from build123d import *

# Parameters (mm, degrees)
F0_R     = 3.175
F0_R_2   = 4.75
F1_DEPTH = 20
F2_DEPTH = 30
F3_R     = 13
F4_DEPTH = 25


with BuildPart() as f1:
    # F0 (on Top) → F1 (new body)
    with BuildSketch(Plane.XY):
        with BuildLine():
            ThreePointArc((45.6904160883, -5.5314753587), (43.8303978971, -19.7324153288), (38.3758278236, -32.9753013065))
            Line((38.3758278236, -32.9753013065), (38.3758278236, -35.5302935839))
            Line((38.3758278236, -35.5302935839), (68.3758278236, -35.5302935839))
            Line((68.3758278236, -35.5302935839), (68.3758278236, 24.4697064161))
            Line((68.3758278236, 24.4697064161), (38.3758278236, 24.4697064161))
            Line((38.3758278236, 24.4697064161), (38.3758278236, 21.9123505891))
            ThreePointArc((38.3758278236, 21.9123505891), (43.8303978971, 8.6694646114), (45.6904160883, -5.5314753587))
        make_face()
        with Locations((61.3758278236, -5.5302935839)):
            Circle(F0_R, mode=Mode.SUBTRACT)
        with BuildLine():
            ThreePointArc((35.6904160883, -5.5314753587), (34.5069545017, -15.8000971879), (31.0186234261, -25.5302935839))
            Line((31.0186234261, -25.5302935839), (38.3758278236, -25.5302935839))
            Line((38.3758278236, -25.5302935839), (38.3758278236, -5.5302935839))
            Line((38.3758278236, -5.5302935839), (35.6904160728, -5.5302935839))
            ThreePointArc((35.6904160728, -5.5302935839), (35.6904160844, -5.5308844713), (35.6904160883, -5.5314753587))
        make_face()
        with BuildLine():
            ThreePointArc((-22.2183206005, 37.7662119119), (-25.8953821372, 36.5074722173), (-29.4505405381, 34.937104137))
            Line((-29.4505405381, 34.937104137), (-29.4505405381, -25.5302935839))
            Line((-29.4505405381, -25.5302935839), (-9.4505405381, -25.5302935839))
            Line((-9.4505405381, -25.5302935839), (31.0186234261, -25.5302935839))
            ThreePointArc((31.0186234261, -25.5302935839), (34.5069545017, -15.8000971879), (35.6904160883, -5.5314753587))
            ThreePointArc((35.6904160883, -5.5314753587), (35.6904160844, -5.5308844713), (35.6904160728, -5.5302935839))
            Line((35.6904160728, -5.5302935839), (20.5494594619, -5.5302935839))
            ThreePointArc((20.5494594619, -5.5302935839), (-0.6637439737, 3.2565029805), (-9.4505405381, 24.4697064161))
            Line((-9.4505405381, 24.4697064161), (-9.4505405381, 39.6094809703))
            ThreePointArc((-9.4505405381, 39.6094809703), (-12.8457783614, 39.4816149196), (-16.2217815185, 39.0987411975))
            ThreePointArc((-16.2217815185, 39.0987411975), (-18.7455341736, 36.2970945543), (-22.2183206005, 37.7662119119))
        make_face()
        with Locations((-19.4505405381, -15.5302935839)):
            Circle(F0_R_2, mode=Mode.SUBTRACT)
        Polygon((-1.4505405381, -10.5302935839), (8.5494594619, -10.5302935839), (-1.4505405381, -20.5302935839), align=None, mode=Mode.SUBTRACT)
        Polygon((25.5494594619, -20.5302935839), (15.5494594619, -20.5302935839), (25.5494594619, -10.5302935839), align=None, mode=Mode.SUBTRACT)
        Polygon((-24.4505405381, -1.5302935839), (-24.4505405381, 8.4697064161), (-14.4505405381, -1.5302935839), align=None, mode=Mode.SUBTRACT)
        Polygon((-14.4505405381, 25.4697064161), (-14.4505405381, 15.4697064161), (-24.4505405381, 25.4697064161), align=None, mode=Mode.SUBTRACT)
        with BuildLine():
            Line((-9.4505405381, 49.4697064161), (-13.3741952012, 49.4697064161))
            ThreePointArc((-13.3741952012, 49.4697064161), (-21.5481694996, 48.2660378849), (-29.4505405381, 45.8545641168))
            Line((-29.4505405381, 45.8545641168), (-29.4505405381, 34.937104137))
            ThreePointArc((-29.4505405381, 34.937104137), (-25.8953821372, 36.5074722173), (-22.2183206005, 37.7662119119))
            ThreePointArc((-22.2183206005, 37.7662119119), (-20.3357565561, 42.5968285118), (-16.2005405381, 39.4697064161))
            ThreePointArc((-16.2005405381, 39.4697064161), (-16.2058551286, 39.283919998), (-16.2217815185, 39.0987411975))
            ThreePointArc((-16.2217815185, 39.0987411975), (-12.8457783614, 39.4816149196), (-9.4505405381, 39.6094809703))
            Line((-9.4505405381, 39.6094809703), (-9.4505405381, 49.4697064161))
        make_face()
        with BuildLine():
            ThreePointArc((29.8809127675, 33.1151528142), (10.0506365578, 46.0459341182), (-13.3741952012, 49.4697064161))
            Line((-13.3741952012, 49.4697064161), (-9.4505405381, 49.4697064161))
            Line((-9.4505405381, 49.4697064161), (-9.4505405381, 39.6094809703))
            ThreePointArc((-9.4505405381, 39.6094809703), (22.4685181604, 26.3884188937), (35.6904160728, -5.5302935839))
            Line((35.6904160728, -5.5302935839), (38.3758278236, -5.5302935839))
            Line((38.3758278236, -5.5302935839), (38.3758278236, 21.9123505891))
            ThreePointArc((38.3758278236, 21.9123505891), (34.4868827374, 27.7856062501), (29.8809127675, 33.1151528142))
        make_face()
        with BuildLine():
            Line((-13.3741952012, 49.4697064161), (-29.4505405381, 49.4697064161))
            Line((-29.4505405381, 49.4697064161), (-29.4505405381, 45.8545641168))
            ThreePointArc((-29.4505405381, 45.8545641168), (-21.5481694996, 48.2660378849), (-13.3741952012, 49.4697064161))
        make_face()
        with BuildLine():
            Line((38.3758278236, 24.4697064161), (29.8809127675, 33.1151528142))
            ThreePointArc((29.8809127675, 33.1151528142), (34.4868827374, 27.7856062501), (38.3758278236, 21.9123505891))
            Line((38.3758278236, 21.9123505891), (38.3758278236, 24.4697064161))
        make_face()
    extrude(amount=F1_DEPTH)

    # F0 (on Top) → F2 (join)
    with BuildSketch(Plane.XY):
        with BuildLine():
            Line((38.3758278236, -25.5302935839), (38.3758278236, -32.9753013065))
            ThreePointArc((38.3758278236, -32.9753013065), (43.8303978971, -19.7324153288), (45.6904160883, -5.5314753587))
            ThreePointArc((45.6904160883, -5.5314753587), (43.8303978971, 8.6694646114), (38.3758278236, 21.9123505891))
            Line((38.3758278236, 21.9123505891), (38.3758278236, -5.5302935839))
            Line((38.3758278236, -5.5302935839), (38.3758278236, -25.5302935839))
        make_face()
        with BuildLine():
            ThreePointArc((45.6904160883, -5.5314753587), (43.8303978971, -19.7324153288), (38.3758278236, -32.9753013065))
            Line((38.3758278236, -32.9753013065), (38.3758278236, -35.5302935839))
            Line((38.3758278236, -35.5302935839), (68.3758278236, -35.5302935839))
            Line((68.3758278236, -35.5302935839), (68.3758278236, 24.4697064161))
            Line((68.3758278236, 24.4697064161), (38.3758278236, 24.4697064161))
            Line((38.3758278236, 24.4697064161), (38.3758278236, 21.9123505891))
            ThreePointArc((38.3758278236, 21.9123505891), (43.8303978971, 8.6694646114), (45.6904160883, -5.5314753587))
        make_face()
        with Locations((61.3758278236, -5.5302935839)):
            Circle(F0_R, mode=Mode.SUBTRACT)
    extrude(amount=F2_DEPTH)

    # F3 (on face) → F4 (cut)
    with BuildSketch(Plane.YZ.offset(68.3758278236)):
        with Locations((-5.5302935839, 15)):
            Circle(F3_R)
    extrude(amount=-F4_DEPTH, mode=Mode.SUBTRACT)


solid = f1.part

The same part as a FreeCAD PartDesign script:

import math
import FreeCAD as App
import Part
import Sketcher

doc = App.newDocument("Part")
body = doc.addObject("PartDesign::Body", "Body")

sketch1 = body.newObject("Sketcher::SketchObject", "Sketch")
sketch1.AttachmentSupport = (doc.getObject("XY_Plane"), [""])
sketch1.MapMode = "FlatFace"
sketch1.addGeometry([
    Part.ArcOfCircle(Part.Circle(App.Vector(-9.45, -5.53, 0), App.Vector(0, 0, 1), 55.14), math.radians(-30), math.radians(0)),
    Part.LineSegment(App.Vector(38.38, -32.98, 0), App.Vector(38.38, -35.53, 0)),
    Part.LineSegment(App.Vector(38.38, -35.53, 0), App.Vector(68.38, -35.53, 0)),
    Part.LineSegment(App.Vector(68.38, -35.53, 0), App.Vector(68.38, 24.47, 0)),
    Part.LineSegment(App.Vector(68.38, 24.47, 0), App.Vector(38.38, 24.47, 0)),
    Part.LineSegment(App.Vector(38.38, 24.47, 0), App.Vector(29.88, 33.12, 0)),
    Part.ArcOfCircle(Part.Circle(App.Vector(-9.45, -5.53, 0), App.Vector(0, 0, 1), 55.14), math.radians(44), math.radians(94)),
    Part.LineSegment(App.Vector(-13.37, 49.47, 0), App.Vector(-29.45, 49.47, 0)),
    Part.LineSegment(App.Vector(-29.45, 49.47, 0), App.Vector(-29.45, -25.53, 0)),
    Part.LineSegment(App.Vector(-29.45, -25.53, 0), App.Vector(38.38, -25.53, 0)),
    Part.LineSegment(App.Vector(38.38, -25.53, 0), App.Vector(38.38, 21.91, 0)),
    Part.ArcOfCircle(Part.Circle(App.Vector(-9.45, -5.53, 0), App.Vector(0, 0, 1), 55.14), math.radians(0), math.radians(30)),
    Part.Circle(App.Vector(61.38, -5.53, 0), App.Vector(0, 0, 1), 3.17),
    Part.LineSegment(App.Vector(-14.45, 15.47, 0), App.Vector(-24.45, 25.47, 0)),
    Part.LineSegment(App.Vector(-24.45, 25.47, 0), App.Vector(-14.45, 25.47, 0)),
    Part.LineSegment(App.Vector(-14.45, 25.47, 0), App.Vector(-14.45, 15.47, 0)),
    Part.LineSegment(App.Vector(35.69, -5.53, 0), App.Vector(20.55, -5.53, 0)),
    Part.ArcOfCircle(Part.Circle(App.Vector(20.55, 24.47, 0), App.Vector(0, 0, 1), 30), math.radians(180), math.radians(270)),
    Part.LineSegment(App.Vector(-9.45, 24.47, 0), App.Vector(-9.45, 39.61, 0)),
    Part.ArcOfCircle(Part.Circle(App.Vector(-9.45, -5.53, 0), App.Vector(0, 0, 1), 45.14), math.radians(0), math.radians(90)),
    Part.ArcOfCircle(Part.Circle(App.Vector(-19.45, 39.47, 0), App.Vector(0, 0, 1), 3.25), math.radians(-148), math.radians(-7)),
    Part.ArcOfCircle(Part.Circle(App.Vector(-19.45, 39.47, 0), App.Vector(0, 0, 1), 3.25), math.radians(0), math.radians(212)),
    Part.ArcOfCircle(Part.Circle(App.Vector(-19.45, 39.47, 0), App.Vector(0, 0, 1), 3.25), math.radians(-6.55), math.radians(0)),
    Part.Circle(App.Vector(-19.45, -15.53, 0), App.Vector(0, 0, 1), 4.75),
    Part.LineSegment(App.Vector(-1.45, -20.53, 0), App.Vector(-1.45, -10.53, 0)),
    Part.LineSegment(App.Vector(-1.45, -10.53, 0), App.Vector(8.55, -10.53, 0)),
    Part.LineSegment(App.Vector(8.55, -10.53, 0), App.Vector(-1.45, -20.53, 0)),
    Part.LineSegment(App.Vector(25.55, -10.53, 0), App.Vector(25.55, -20.53, 0)),
    Part.LineSegment(App.Vector(25.55, -20.53, 0), App.Vector(15.55, -20.53, 0)),
    Part.LineSegment(App.Vector(15.55, -20.53, 0), App.Vector(25.55, -10.53, 0)),
    Part.LineSegment(App.Vector(-14.45, -1.53, 0), App.Vector(-24.45, -1.53, 0)),
    Part.LineSegment(App.Vector(-24.45, -1.53, 0), App.Vector(-24.45, 8.47, 0)),
    Part.LineSegment(App.Vector(-24.45, 8.47, 0), App.Vector(-14.45, -1.53, 0)),
], False)
sketch1.addConstraint([
    Sketcher.Constraint("Coincident", 0, 1, 1, 1),
    Sketcher.Constraint("Coincident", 1, 2, 2, 1),
    Sketcher.Constraint("Coincident", 2, 2, 3, 1),
    Sketcher.Constraint("Coincident", 3, 2, 4, 1),
    Sketcher.Constraint("Coincident", 4, 2, 5, 1),
    Sketcher.Constraint("Tangent", 5, 2, 6, 1),
    Sketcher.Constraint("Coincident", 6, 2, 7, 1),
    Sketcher.Constraint("Coincident", 7, 2, 8, 1),
    Sketcher.Constraint("Coincident", 8, 2, 9, 1),
    Sketcher.Constraint("Coincident", 9, 2, 10, 1),
    Sketcher.Constraint("Coincident", 10, 2, 11, 2),
    Sketcher.Constraint("Tangent", 11, 1, 0, 2),
    Sketcher.Constraint("Coincident", 13, 2, 14, 1),
    Sketcher.Constraint("Coincident", 14, 2, 15, 1),
    Sketcher.Constraint("Coincident", 15, 2, 13, 1),
    Sketcher.Constraint("Tangent", 16, 2, 17, 2),
    Sketcher.Constraint("Tangent", 17, 1, 18, 1),
    Sketcher.Constraint("Coincident", 18, 2, 19, 2),
    Sketcher.Constraint("Coincident", 19, 1, 16, 1),
    Sketcher.Constraint("Tangent", 20, 1, 21, 2),
    Sketcher.Constraint("Tangent", 21, 1, 22, 2),
    Sketcher.Constraint("Tangent", 22, 1, 20, 2),
    Sketcher.Constraint("Coincident", 24, 2, 25, 1),
    Sketcher.Constraint("Coincident", 25, 2, 26, 1),
    Sketcher.Constraint("Coincident", 26, 2, 24, 1),
    Sketcher.Constraint("Coincident", 27, 2, 28, 1),
    Sketcher.Constraint("Coincident", 28, 2, 29, 1),
    Sketcher.Constraint("Coincident", 29, 2, 27, 1),
    Sketcher.Constraint("Coincident", 30, 2, 31, 1),
    Sketcher.Constraint("Coincident", 31, 2, 32, 1),
    Sketcher.Constraint("Coincident", 32, 2, 30, 1),
    Sketcher.Constraint("Vertical", 1),
    Sketcher.Constraint("Horizontal", 2),
    Sketcher.Constraint("Vertical", 3),
    Sketcher.Constraint("Horizontal", 4),
    Sketcher.Constraint("Horizontal", 7),
    Sketcher.Constraint("Vertical", 8),
    Sketcher.Constraint("Horizontal", 9),
    Sketcher.Constraint("Vertical", 10),
    Sketcher.Constraint("Horizontal", 14),
    Sketcher.Constraint("Vertical", 15),
    Sketcher.Constraint("Horizontal", 16),
    Sketcher.Constraint("Vertical", 18),
    Sketcher.Constraint("Vertical", 24),
    Sketcher.Constraint("Horizontal", 25),
    Sketcher.Constraint("Vertical", 27),
    Sketcher.Constraint("Horizontal", 28),
    Sketcher.Constraint("Horizontal", 30),
    Sketcher.Constraint("Vertical", 31),
    Sketcher.Constraint("Coincident", 6, 3, 0, 3),
    Sketcher.Constraint("Coincident", 19, 3, 0, 3),
    Sketcher.Constraint("Equal", 0, 6),
    Sketcher.Constraint("Equal", 6, 11),
    Sketcher.Constraint("Perpendicular", 13, 26),
    Sketcher.Constraint("Parallel", 26, 29),
    Sketcher.Constraint("Perpendicular", 29, 32),
    Sketcher.Constraint("Horizontal", 17, 3, 3, 2),
    Sketcher.Constraint("Horizontal", 19, 3, 11, 1),
    Sketcher.Constraint("Horizontal", 12, 3, 16, 2),
    Sketcher.Constraint("Horizontal", 22, 3, 21, 1),
    Sketcher.Constraint("Horizontal", 26, 2, 27, 2),
    Sketcher.Constraint("Horizontal", 25, 2, 29, 2),
    Sketcher.Constraint("Vertical", 22, 3, 23, 3),
    Sketcher.Constraint("Vertical", 1, 2, 4, 2),
    Sketcher.Constraint("Vertical", 4, 2, 9, 2),
    Sketcher.Constraint("Vertical", 19, 3, 17, 1),
    Sketcher.Constraint("Vertical", 13, 2, 30, 2),
    Sketcher.Constraint("Vertical", 15, 2, 32, 2),
    Sketcher.Constraint("Equal", 14, 25),
    Sketcher.Constraint("Equal", 30, 15),
    Sketcher.Constraint("Radius", 17, 30.0),
    Sketcher.Constraint("Diameter", 23, 9.5),
    Sketcher.Constraint("Diameter", 12, 6.35),
    Sketcher.Constraint("DistanceX", 2, 1, 2, 2, 30.0),
    Sketcher.Constraint("DistanceX", 14, 1, 14, 2, 10.0),
    Sketcher.Constraint("DistanceY", 3, 1, 3, 2, 60.0),
    Sketcher.Constraint("DistanceY", 8, 2, 8, 1, 75.0),
    Sketcher.Constraint("Radius", 20, 3.25),
    Sketcher.Constraint("DistanceX", 20, 3, 17, 3, 40.0),
    Sketcher.Constraint("DistanceY", 17, 3, 20, 3, 15.0),
    Sketcher.Constraint("DistanceY", 23, 3, 20, 3, 55.0),
    Sketcher.Constraint("DistanceX", 0, 1, 12, 3, 23.0),
    Sketcher.Constraint("DistanceY", 20, 3, 6, 2, 10.0),
    Sketcher.Constraint("DistanceX", 7, 2, 22, 3, 10.0),
    Sketcher.Constraint("DistanceX", 13, 2, 22, 3, 5.0),
    Sketcher.Constraint("DistanceY", 13, 2, 22, 3, 14.0),
    Sketcher.Constraint("DistanceX", 19, 1, 11, 1, 10.0),
    Sketcher.Constraint("DistanceX", 0, 3, 24, 2, 8.0),
    Sketcher.Constraint("DistanceY", 23, 3, 24, 2, 5.0),
    Sketcher.Constraint("DistanceX", 16, 2, 27, 2, 5.0),
    Sketcher.Constraint("DistanceY", 23, 3, 30, 2, 14.0),
    Sketcher.Constraint("Radius", 0, 55.140956),
    Sketcher.Constraint("DistanceX", 9, 1, 9, 2, 67.826368),
    Sketcher.Constraint("DistanceY", 0, 1, -1, 1, 32.975301),
    Sketcher.Constraint("DistanceX", 7, 2, 7, 1, 16.076345),
    Sketcher.Constraint("DistanceX", 0, 3, -1, 1, 9.45054),
    Sketcher.Constraint("DistanceX", 20, 1, -1, 1, 22.218321),
    Sketcher.Constraint("DistanceX", 22, 1, -1, 1, 16.221782),
])
pad1 = body.newObject("PartDesign::Pad", "Pad")
pad1.Profile = sketch1
pad1.Length = 20

sketch2 = body.newObject("Sketcher::SketchObject", "Sketch001")
sketch2.AttachmentSupport = (doc.getObject("XY_Plane"), [""])
sketch2.MapMode = "FlatFace"
sketch2.addGeometry([
    Part.LineSegment(App.Vector(38.4, -35.5, 0), App.Vector(68.4, -35.5, 0)),
    Part.LineSegment(App.Vector(68.4, -35.5, 0), App.Vector(68.4, 24.5, 0)),
    Part.LineSegment(App.Vector(68.4, 24.5, 0), App.Vector(38.4, 24.5, 0)),
    Part.LineSegment(App.Vector(38.4, 24.5, 0), App.Vector(38.4, -35.5, 0)),
    Part.Circle(App.Vector(61.4, -5.5, 0), App.Vector(0, 0, 1), 3.2),
], False)
sketch2.addConstraint([
    Sketcher.Constraint("Coincident", 0, 2, 1, 1),
    Sketcher.Constraint("Coincident", 1, 2, 2, 1),
    Sketcher.Constraint("Coincident", 2, 2, 3, 1),
    Sketcher.Constraint("Coincident", 3, 2, 0, 1),
    Sketcher.Constraint("Horizontal", 0),
    Sketcher.Constraint("Vertical", 1),
    Sketcher.Constraint("Horizontal", 2),
    Sketcher.Constraint("Vertical", 3),
    Sketcher.Constraint("Diameter", 4, 6.35),
    Sketcher.Constraint("DistanceX", 0, 1, 0, 2, 30.0),
    Sketcher.Constraint("DistanceY", 1, 1, 1, 2, 60.0),
    Sketcher.Constraint("DistanceX", 4, 3, 0, 2, 7.0),
    Sketcher.Constraint("DistanceY", 0, 2, 4, 3, 30.0),
    Sketcher.Constraint("DistanceX", -1, 1, 4, 3, 61.375828),
    Sketcher.Constraint("DistanceY", 4, 3, -1, 1, 5.530294),
])
pad2 = body.newObject("PartDesign::Pad", "Pad001")
pad2.Profile = sketch2
pad2.Length = 30

sketch3 = body.newObject("Sketcher::SketchObject", "Sketch002")
sketch3.AttachmentSupport = (doc.getObject("YZ_Plane"), [""])
sketch3.MapMode = "FlatFace"
sketch3.AttachmentOffset = App.Placement(App.Vector(0, 0, 68.375828), App.Rotation())
sketch3.addGeometry(Part.Circle(App.Vector(-6, 15, 0), App.Vector(0, 0, 1), 13), False)
sketch3.addConstraint([
    Sketcher.Constraint("Diameter", 0, 26.0),
    Sketcher.Constraint("DistanceY", -1, 1, 0, 3, 15.0),
    Sketcher.Constraint("DistanceX", 0, 3, -1, 1, 5.530294),
])
pocket1 = body.newObject("PartDesign::Pocket", "Pocket")
pocket1.Profile = sketch3
pocket1.Length = 25

doc.recompute()
